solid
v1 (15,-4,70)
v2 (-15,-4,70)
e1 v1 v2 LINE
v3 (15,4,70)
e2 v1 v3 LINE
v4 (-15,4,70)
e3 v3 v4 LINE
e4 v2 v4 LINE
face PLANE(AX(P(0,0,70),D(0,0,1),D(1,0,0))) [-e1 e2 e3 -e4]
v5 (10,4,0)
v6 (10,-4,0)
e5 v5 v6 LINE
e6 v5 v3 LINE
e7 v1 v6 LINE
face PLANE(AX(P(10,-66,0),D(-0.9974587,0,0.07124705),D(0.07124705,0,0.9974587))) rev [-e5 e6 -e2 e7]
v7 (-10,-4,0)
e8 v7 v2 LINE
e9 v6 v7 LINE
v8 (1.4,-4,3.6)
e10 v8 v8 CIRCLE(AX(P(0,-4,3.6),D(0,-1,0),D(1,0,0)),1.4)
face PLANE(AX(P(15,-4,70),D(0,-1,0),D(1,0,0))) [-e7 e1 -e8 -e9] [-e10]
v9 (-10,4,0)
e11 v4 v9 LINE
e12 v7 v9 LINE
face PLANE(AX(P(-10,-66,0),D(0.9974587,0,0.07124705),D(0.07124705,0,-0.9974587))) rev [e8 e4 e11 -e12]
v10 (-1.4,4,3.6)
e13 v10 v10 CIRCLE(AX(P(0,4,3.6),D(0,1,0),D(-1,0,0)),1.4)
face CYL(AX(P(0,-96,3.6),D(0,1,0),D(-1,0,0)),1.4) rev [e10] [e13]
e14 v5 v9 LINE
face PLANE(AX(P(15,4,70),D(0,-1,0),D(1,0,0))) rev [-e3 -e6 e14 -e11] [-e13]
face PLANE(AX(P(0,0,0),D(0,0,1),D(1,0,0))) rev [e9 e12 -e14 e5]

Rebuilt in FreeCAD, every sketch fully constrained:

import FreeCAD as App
import Part
import Sketcher
from FreeCAD import Vector

doc = App.newDocument("Part")
params = doc.addObject("Spreadsheet::Sheet", "Params")
for row, (alias, value) in enumerate([
    ("sketch1_width", "30 mm"),
    ("sketch1_height", "8 mm"),
    ("pad1_length", "70 mm"),
    ("sketch2_width", "5 mm"),
    ("sketch2_height", "70 mm"),
    ("pocket1_length", "70 mm"),
    ("sketch3_diameter", "2.8 mm"),
    ("pocket2_length", "100 mm"),
], start=1):
    params.set(f"A{row}", alias)
    params.set(f"B{row}", "=" + value)
    params.setAlias(f"B{row}", alias)

body = doc.addObject("PartDesign::Body", "Body")

sketch1 = doc.addObject("Sketcher::SketchObject", "Sketch")
body.addObject(sketch1)
sketch1.AttachmentSupport = (doc.XY_Plane, [""])
sketch1.MapMode = "FlatFace"
sketch1.addGeometry(Part.LineSegment(Vector(-15, 4, 0), Vector(-15, -4, 0)), False)
sketch1.addGeometry(Part.LineSegment(Vector(-15, -4, 0), Vector(15, -4, 0)), False)
sketch1.addGeometry(Part.LineSegment(Vector(15, -4, 0), Vector(15, 4, 0)), False)
sketch1.addGeometry(Part.LineSegment(Vector(15, 4, 0), Vector(-15, 4, 0)), False)
sketch1.addConstraint(Sketcher.Constraint("Coincident", 0, 2, 1, 1))
sketch1.addConstraint(Sketcher.Constraint("Coincident", 1, 2, 2, 1))
sketch1.addConstraint(Sketcher.Constraint("Coincident", 2, 2, 3, 1))
sketch1.addConstraint(Sketcher.Constraint("Coincident", 3, 2, 0, 1))
sketch1.addConstraint(Sketcher.Constraint("Vertical", 0))
sketch1.addConstraint(Sketcher.Constraint("Horizontal", 1))
sketch1.addConstraint(Sketcher.Constraint("Vertical", 2))
sketch1.addConstraint(Sketcher.Constraint("Horizontal", 3))
sketch1.addConstraint(Sketcher.Constraint("Symmetric", 0, 2, 2, 2, -1, 1))
sketch1.addConstraint(Sketcher.Constraint("DistanceX", 1, 1, 1, 2, 30.0))
sketch1.addConstraint(Sketcher.Constraint("DistanceY", 0, 2, 0, 1, 8.0))
sketch1.setExpression("Constraints[9]", "Params.sketch1_width")
sketch1.setExpression("Constraints[10]", "Params.sketch1_height")
pad1 = doc.addObject("PartDesign::Pad", "Pad")
body.addObject(pad1)
pad1.Profile = sketch1
pad1.setExpression("Length", "Params.pad1_length")

sketch2 = doc.addObject("Sketcher::SketchObject", "Sketch001")
body.addObject(sketch2)
sketch2.AttachmentSupport = (doc.XZ_Plane, [""])
sketch2.MapMode = "FlatFace"
sketch2.AttachmentOffset = App.Placement(Vector(0, 0, -4), App.Rotation())
sketch2.addGeometry(Part.LineSegment(Vector(-10, 0, 0), Vector(-15, 0, 0)), False)
sketch2.addGeometry(Part.LineSegment(Vector(-15, 0, 0), Vector(-15, 70, 0)), False)
sketch2.addGeometry(Part.LineSegment(Vector(-15, 70, 0), Vector(-10, 0, 0)), False)
sketch2.addGeometry(Part.LineSegment(Vector(15, 0, 0), Vector(10, 0, 0)), False)
sketch2.addGeometry(Part.LineSegment(Vector(10, 0, 0), Vector(15, 70, 0)), False)
sketch2.addGeometry(Part.LineSegment(Vector(15, 70, 0), Vector(15, 0, 0)), False)
sketch2.addConstraint(Sketcher.Constraint("Coincident", 0, 2, 1, 1))
sketch2.addConstraint(Sketcher.Constraint("Coincident", 1, 2, 2, 1))
sketch2.addConstraint(Sketcher.Constraint("Coincident", 2, 2, 0, 1))
sketch2.addConstraint(Sketcher.Constraint("Coincident", 3, 2, 4, 1))
sketch2.addConstraint(Sketcher.Constraint("Coincident", 4, 2, 5, 1))
sketch2.addConstraint(Sketcher.Constraint("Coincident", 5, 2, 3, 1))
sketch2.addConstraint(Sketcher.Constraint("Horizontal", 0))
sketch2.addConstraint(Sketcher.Constraint("Vertical", 1))
sketch2.addConstraint(Sketcher.Constraint("Horizontal", 3))
sketch2.addConstraint(Sketcher.Constraint("Vertical", 5))
sketch2.addConstraint(Sketcher.Constraint("Symmetric", 2, 2, 3, 2, -1, 1))
sketch2.addConstraint(Sketcher.Constraint("Symmetric", 1, 2, 4, 2, -2))
sketch2.addConstraint(Sketcher.Constraint("PointOnObject", 0, 2, -1))
sketch2.addConstraint(Sketcher.Constraint("DistanceX", 0, 2, 0, 1, 5.0))
sketch2.addConstraint(Sketcher.Constraint("DistanceY", 1, 1, 1, 2, 70.0))
sketch2.addConstraint(Sketcher.Constraint("DistanceX", 0, 2, -1, 1, 15.0))
sketch2.setExpression("Constraints[13]", "Params.sketch2_width")
sketch2.setExpression("Constraints[14]", "Params.sketch2_height")
pocket1 = doc.addObject("PartDesign::Pocket", "Pocket")
body.addObject(pocket1)
pocket1.Profile = sketch2
pocket1.setExpression("Length", "Params.pocket1_length")
pocket1.Reversed = True

sketch3 = doc.addObject("Sketcher::SketchObject", "Sketch002")
body.addObject(sketch3)
sketch3.AttachmentSupport = (doc.XZ_Plane, [""])
sketch3.MapMode = "FlatFace"
sketch3.AttachmentOffset = App.Placement(Vector(0, 0, -4), App.Rotation())
sketch3.addGeometry(Part.Circle(Vector(0, 3.6, 0), Vector(0, 0, 1), 1.4), False)
sketch3.addConstraint(Sketcher.Constraint("PointOnObject", 0, 3, -2))
sketch3.addConstraint(Sketcher.Constraint("Diameter", 0, 2.8))
sketch3.addConstraint(Sketcher.Constraint("DistanceY", -1, 1, 0, 3, 3.6))
sketch3.setExpression("Constraints[1]", "Params.sketch3_diameter")
pocket2 = doc.addObject("PartDesign::Pocket", "Pocket001")
body.addObject(pocket2)
pocket2.Profile = sketch3
pocket2.setExpression("Length", "Params.pocket2_length")
pocket2.Reversed = True

doc.recompute()
